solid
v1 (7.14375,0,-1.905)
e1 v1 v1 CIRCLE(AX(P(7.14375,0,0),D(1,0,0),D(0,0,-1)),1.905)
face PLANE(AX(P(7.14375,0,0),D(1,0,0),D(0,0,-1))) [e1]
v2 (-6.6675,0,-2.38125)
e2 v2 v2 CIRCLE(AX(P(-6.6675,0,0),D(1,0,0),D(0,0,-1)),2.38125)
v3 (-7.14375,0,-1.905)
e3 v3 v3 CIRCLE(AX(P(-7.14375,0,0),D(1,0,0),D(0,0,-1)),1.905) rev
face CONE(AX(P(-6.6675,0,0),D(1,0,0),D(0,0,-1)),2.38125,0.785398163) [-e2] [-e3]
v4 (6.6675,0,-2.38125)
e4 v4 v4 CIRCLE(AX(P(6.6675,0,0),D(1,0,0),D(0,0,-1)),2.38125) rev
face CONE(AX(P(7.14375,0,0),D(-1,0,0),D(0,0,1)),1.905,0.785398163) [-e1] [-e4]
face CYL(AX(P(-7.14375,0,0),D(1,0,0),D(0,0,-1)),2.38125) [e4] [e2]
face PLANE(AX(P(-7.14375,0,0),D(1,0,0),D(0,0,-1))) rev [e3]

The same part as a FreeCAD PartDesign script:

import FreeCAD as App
import Part
import Sketcher
Q = App.Units.Quantity


def edges_at(feature, points):
    """Names of the edges that pass closest to the given points."""
    edges = feature.Shape.Edges
    near = lambda p: min(range(len(edges)), key=lambda i: edges[i].distToShape(Part.Vertex(*p))[0])
    return sorted({f"Edge{near(p) + 1}" for p in points})

doc = App.newDocument("Part")
body = doc.addObject("PartDesign::Body", "Body")

# Sketch on YZ plane
sketch1 = body.newObject("Sketcher::SketchObject", "Sketch")
sketch1.AttachmentSupport = (doc.getObject("YZ_Plane"), [""])
sketch1.MapMode = "FlatFace"
sketch1.addGeometry(Part.Circle(App.Vector(0, 0, 0), App.Vector(0, 0, 1), 2.38125), False)
sketch1.addConstraint([
    Sketcher.Constraint("Coincident", 0, 3, -1, 1),
    Sketcher.Constraint("Diameter", 0, Q("0.1875 in")),
])
pad1 = body.newObject("PartDesign::Pad", "Pad")
pad1.Profile = sketch1
pad1.Type = "TwoLengths"
pad1.Length = Q("0.28125 in")
pad1.Length2 = Q("0.28125 in")
doc.recompute()

chamfer = body.newObject("PartDesign::Chamfer", "Chamfer")
chamfer.Base = (pad1, edges_at(pad1, [(-7.144, 0, 2.381), (7.144, 0, 2.381)]))
chamfer.Size = 0.47625

doc.recompute()
